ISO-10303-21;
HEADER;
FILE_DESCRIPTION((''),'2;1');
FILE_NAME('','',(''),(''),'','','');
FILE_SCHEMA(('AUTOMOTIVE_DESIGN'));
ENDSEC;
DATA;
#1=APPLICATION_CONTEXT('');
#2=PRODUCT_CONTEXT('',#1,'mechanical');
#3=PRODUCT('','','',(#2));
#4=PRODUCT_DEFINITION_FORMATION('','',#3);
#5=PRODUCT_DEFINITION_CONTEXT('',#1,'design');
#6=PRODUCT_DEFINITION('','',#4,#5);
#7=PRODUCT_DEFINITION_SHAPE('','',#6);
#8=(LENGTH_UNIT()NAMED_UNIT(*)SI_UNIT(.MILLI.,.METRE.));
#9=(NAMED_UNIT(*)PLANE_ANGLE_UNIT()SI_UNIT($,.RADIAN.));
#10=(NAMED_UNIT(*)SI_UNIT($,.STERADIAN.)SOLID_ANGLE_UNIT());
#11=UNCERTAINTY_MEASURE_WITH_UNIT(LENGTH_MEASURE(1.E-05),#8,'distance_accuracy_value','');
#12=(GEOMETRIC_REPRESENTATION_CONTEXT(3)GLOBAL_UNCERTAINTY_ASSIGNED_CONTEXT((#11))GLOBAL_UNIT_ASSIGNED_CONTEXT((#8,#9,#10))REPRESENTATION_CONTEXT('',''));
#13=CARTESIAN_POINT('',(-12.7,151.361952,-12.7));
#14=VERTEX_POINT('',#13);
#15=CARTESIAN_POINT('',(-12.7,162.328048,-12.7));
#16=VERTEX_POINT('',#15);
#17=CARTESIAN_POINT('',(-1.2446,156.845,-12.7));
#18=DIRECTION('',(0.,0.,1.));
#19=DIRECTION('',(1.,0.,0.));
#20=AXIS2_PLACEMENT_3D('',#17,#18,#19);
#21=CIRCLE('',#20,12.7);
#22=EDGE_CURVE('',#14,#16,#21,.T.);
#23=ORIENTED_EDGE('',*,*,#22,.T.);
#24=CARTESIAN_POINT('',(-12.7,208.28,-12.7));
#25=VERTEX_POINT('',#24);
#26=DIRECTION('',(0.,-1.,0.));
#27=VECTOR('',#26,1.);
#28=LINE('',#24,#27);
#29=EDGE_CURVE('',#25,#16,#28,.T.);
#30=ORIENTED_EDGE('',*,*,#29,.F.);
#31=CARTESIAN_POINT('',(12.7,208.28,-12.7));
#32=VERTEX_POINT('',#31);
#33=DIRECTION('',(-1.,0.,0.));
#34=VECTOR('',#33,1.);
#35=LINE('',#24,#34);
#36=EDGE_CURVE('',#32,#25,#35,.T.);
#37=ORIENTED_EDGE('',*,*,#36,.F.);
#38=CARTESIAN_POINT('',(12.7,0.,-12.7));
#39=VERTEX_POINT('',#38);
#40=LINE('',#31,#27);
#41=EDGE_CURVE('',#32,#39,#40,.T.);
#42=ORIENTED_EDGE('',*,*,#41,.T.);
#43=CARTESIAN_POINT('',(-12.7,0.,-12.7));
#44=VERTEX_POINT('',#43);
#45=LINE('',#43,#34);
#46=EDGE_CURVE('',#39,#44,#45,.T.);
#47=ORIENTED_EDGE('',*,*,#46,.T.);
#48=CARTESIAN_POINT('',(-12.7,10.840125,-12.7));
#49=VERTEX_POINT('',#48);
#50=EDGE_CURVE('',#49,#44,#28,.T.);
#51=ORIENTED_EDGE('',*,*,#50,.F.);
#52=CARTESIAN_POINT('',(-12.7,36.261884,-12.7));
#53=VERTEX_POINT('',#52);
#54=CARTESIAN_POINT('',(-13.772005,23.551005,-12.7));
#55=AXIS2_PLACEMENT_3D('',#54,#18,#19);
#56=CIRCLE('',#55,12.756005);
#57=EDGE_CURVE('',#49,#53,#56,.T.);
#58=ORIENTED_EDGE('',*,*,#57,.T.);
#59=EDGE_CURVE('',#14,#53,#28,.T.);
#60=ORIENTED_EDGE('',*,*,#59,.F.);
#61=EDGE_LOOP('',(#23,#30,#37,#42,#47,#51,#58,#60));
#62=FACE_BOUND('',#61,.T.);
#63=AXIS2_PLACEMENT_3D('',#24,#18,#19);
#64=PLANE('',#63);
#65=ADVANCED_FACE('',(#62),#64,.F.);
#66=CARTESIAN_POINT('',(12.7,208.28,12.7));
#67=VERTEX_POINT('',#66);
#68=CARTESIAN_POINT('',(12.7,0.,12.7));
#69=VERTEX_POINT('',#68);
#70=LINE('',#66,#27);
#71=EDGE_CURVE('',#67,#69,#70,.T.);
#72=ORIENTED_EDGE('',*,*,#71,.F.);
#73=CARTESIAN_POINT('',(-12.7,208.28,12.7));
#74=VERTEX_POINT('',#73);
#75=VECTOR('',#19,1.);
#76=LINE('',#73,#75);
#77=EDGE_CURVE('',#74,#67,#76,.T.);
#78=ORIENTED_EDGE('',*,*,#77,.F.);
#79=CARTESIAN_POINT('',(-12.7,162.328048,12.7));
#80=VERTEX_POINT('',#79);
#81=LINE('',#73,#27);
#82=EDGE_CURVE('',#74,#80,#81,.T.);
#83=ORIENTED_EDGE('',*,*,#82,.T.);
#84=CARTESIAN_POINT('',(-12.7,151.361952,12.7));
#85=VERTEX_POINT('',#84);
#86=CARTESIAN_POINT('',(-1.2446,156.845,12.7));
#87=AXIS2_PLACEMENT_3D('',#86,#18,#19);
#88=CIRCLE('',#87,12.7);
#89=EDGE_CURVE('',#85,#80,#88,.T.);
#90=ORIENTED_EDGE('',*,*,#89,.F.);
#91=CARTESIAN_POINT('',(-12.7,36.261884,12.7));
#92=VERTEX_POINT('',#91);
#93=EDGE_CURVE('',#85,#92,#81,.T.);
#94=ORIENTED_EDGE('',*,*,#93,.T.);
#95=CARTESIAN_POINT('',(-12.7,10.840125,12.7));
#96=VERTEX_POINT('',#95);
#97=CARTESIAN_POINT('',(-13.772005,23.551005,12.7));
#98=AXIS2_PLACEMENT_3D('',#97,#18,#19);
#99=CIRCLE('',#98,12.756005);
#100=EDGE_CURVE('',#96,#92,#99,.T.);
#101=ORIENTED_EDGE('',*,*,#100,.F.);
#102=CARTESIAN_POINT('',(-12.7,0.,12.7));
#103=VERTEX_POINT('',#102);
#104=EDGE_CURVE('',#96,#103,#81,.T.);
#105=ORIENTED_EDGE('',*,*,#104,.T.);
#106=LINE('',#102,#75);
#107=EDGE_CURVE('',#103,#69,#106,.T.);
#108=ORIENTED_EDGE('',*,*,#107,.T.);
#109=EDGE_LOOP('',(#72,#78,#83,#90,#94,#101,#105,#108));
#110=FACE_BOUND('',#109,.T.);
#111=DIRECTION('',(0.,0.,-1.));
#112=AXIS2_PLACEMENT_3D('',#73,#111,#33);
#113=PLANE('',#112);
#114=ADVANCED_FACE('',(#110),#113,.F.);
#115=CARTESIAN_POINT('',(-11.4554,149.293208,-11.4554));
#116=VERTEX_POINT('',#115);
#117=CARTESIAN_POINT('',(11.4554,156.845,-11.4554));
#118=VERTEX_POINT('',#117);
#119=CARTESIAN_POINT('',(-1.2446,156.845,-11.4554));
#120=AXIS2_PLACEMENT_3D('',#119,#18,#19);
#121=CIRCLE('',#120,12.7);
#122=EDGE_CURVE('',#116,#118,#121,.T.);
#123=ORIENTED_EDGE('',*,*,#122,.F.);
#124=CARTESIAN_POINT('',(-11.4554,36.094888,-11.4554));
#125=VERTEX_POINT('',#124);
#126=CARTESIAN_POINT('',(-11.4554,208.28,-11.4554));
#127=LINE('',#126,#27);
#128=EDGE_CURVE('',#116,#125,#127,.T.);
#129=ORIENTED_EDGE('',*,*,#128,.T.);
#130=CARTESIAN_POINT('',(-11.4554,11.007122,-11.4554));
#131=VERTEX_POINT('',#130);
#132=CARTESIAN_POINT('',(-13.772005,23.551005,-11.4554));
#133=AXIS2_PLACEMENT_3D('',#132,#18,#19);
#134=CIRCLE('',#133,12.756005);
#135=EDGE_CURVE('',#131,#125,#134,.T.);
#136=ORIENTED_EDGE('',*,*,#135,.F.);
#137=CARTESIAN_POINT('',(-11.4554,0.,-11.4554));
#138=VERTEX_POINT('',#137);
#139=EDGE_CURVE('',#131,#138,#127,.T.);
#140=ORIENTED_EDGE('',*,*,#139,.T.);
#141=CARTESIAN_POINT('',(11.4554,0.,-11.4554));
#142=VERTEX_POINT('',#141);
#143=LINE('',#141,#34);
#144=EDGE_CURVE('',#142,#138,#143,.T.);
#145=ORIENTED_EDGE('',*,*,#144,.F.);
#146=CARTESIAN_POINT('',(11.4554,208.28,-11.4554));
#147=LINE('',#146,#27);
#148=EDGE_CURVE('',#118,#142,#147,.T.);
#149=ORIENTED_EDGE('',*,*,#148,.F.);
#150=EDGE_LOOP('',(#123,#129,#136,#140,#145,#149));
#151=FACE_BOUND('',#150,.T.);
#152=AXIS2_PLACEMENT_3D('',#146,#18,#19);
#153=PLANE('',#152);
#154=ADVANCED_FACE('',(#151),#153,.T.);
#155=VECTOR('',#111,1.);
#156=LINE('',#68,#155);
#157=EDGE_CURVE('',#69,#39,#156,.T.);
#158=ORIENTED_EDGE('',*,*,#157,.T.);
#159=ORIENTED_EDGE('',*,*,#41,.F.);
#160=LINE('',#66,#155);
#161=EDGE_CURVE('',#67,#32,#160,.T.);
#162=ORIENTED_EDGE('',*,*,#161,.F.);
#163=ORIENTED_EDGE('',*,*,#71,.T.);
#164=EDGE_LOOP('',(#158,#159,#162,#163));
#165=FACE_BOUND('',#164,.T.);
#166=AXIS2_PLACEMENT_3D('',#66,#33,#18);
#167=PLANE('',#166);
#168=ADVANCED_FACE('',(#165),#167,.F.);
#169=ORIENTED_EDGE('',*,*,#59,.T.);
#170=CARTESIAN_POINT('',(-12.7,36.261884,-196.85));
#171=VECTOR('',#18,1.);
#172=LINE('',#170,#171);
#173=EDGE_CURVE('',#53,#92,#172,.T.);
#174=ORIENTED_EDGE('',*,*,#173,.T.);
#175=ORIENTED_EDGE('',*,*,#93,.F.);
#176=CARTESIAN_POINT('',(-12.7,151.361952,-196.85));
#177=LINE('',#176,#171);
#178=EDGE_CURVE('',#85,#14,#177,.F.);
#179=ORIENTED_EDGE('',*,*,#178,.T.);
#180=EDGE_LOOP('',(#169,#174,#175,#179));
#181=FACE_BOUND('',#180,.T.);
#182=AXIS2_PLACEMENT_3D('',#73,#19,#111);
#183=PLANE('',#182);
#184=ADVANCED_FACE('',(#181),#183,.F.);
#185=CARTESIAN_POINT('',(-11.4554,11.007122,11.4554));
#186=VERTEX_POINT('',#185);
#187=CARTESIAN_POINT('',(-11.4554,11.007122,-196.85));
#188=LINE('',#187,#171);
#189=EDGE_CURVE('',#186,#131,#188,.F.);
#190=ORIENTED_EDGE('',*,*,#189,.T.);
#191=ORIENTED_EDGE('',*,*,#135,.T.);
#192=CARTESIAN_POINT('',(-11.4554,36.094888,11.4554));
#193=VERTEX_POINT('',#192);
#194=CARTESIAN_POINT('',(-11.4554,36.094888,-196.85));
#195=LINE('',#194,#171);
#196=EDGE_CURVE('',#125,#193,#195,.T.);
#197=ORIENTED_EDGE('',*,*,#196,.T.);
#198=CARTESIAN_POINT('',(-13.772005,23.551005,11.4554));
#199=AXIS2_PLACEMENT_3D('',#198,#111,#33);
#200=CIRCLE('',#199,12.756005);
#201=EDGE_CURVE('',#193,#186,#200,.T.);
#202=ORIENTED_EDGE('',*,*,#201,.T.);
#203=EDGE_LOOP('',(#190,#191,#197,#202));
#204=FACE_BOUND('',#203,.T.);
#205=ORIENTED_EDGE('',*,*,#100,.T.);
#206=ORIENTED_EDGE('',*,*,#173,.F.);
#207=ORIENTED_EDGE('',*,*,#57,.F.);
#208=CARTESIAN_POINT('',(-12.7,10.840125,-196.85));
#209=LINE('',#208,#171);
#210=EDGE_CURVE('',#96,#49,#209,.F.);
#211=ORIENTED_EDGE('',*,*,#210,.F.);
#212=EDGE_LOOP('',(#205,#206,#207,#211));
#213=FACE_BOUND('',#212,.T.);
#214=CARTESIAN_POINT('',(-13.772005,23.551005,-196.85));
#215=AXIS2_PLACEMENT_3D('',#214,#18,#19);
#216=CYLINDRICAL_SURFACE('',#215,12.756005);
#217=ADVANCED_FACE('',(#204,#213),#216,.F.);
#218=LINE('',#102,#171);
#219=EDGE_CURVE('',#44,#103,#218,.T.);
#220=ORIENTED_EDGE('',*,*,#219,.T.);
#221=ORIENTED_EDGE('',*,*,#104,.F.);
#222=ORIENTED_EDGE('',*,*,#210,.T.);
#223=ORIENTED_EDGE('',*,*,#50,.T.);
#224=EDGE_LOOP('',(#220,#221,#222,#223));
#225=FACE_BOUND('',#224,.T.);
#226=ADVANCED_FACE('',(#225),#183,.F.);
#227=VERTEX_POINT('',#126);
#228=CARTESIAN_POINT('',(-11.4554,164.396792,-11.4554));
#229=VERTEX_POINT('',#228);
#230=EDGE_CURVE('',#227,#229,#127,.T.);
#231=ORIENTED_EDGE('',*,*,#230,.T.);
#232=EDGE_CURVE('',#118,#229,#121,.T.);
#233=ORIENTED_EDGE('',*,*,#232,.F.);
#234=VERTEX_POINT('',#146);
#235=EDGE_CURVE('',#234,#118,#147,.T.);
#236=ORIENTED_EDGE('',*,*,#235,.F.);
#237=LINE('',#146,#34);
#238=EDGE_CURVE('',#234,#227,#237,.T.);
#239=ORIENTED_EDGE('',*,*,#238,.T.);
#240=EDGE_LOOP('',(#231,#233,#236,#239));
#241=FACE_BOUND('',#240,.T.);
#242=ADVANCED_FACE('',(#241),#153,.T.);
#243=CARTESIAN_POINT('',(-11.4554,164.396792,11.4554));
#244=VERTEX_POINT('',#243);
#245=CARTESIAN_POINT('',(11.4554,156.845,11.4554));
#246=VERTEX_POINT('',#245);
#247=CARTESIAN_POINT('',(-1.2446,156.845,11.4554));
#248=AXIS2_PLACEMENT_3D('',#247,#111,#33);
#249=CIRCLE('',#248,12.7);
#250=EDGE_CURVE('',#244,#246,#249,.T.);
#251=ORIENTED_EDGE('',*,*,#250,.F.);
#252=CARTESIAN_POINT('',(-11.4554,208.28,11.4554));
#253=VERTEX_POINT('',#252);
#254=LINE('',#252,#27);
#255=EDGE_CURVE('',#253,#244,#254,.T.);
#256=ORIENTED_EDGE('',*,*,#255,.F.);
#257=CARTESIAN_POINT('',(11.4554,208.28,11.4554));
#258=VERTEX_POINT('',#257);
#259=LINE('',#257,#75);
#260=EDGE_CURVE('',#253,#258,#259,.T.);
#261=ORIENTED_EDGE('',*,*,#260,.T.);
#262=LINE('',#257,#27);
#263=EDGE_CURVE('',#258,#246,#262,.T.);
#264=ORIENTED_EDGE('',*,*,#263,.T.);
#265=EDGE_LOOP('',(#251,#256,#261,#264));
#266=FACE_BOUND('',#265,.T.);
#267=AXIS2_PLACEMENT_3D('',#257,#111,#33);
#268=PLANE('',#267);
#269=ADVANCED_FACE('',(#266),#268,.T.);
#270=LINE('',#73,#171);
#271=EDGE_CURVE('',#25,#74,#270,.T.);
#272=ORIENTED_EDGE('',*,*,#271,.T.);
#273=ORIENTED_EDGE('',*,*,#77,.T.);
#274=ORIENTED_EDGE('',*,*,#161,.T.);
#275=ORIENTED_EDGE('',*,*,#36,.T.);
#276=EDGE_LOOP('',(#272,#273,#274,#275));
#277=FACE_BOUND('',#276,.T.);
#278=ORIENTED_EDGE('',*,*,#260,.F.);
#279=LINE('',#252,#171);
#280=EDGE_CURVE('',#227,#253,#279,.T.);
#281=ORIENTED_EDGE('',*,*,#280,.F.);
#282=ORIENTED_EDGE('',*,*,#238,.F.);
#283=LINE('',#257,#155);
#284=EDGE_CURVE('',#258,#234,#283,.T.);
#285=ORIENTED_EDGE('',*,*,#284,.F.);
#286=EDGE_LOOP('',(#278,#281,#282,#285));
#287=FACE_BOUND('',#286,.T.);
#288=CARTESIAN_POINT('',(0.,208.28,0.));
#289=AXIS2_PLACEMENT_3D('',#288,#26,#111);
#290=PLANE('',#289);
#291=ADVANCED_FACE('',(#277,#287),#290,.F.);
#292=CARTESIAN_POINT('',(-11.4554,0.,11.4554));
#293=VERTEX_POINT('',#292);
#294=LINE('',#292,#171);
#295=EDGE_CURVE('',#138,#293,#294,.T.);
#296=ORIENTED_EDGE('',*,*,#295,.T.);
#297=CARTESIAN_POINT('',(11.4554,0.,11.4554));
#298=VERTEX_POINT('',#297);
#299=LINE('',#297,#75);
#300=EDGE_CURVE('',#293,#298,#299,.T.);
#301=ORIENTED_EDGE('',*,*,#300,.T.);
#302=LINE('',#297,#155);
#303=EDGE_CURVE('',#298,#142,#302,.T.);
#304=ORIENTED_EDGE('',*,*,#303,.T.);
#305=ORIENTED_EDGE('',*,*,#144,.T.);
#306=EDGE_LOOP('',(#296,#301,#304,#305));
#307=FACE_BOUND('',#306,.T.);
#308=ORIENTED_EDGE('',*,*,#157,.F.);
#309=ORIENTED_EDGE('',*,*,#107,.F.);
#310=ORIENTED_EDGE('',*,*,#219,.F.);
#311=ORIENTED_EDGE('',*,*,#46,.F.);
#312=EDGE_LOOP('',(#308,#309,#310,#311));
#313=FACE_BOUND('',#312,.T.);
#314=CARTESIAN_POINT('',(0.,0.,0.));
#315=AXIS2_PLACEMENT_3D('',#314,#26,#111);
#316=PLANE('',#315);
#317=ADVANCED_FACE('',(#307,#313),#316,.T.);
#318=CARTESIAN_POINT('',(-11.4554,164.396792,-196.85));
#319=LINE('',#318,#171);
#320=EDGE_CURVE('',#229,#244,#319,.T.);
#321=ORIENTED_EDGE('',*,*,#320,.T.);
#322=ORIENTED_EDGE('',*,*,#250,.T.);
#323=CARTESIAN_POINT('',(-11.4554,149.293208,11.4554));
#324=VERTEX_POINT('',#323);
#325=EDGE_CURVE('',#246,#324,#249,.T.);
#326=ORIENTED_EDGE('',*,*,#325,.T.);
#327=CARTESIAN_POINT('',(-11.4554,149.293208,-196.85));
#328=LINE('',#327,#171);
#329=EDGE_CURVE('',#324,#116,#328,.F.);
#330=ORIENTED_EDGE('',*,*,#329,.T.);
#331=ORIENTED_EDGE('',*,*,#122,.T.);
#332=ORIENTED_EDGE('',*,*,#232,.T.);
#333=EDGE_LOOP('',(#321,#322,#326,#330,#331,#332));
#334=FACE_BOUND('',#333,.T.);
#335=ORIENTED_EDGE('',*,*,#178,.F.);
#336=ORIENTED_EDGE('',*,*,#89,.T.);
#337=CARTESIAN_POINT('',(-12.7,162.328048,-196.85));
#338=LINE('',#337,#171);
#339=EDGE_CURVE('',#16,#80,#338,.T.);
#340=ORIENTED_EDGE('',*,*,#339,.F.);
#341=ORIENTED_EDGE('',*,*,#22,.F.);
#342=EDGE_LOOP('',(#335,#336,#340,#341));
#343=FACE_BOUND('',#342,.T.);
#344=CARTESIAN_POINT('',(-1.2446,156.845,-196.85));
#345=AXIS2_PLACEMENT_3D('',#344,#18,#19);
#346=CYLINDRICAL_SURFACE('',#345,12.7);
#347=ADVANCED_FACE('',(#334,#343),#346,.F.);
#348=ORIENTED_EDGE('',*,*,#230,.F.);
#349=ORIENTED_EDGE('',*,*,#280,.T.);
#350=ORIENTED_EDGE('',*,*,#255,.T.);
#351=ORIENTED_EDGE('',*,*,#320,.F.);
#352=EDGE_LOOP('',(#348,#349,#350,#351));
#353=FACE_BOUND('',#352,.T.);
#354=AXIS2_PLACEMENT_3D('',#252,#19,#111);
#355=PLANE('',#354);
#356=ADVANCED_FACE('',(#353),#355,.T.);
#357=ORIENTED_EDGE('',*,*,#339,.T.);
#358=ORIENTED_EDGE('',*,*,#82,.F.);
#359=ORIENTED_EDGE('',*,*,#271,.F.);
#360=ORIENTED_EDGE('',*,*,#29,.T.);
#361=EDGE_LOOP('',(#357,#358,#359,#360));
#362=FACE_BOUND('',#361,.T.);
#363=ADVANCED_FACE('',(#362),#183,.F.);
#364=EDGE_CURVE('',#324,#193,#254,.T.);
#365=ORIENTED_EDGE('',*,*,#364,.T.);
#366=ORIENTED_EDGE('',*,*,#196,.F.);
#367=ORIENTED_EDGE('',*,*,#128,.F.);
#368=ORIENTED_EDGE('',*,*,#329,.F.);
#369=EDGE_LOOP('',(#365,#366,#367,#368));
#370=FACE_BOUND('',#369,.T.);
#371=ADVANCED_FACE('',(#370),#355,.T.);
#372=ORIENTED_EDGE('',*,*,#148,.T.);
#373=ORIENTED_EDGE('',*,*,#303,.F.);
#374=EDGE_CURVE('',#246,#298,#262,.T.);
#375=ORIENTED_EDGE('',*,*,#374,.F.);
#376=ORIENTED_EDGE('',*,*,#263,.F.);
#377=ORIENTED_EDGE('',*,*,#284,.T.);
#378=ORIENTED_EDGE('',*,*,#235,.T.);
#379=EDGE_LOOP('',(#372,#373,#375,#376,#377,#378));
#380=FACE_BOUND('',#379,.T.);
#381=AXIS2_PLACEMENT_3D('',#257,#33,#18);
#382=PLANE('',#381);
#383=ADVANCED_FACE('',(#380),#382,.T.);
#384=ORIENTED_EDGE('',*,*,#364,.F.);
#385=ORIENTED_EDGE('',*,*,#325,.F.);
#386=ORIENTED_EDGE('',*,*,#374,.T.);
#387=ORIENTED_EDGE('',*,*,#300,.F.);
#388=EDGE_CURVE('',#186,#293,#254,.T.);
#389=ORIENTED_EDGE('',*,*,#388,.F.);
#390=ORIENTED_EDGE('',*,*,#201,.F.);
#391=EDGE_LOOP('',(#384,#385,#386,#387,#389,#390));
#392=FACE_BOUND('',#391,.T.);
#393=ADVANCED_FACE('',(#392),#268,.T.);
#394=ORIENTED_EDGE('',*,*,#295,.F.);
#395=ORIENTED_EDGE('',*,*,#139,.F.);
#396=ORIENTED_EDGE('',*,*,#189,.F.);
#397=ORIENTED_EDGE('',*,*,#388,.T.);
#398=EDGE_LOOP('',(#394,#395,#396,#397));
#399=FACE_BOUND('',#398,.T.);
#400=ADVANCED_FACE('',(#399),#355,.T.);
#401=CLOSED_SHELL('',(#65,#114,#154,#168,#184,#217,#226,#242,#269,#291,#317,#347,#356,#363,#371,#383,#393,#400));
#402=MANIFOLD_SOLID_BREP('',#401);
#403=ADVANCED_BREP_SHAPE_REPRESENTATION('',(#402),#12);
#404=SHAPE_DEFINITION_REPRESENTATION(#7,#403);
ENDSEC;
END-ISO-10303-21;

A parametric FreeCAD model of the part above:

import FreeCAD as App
import Part
import Sketcher

V = App.Vector
Q = App.Units.Quantity


def add_polygon(sketch, points):
    """Adds a closed chain of lines whose ends are joined by coincident constraints."""
    first, n = sketch.GeometryCount, len(points)
    for a, b in zip(points, points[1:] + points[:1]):
        sketch.addGeometry(Part.LineSegment(App.Vector(*a, 0), App.Vector(*b, 0)), False)
    for i in range(n):
        sketch.addConstraint(Sketcher.Constraint("Coincident", first + i, 2, first + (i + 1) % n, 1))

doc = App.newDocument("Part")
params = doc.addObject("Spreadsheet::Sheet", "Params")
for row, (alias, value) in enumerate([
    ("sketch1_width", "1 in"),
    ("sketch1_width2", "0.902 in"),
    ("pad1_length", "8.2 in"),
    ("sketch2_diameter", "1 in"),
    ("pocket1_length", "8.25 in"),
], start=1):
    params.set(f"A{row}", alias)
    params.set(f"B{row}", "=" + value)
    params.setAlias(f"B{row}", alias)

body = doc.addObject("PartDesign::Body", "Body")

sketch1 = body.newObject("Sketcher::SketchObject", "Sketch")
sketch1.AttachmentSupport = (doc.getObject("XZ_Plane"), [""])
sketch1.MapMode = "FlatFace"
add_polygon(sketch1, [(-12.7, -12.7), (-12.7, 12.7), (12.7, 12.7), (12.7, -12.7)])
add_polygon(sketch1, [(11.4554, 11.4554), (-11.4554, 11.4554), (-11.4554, -11.4554), (11.4554, -11.4554)])
sketch1.addConstraint([
    Sketcher.Constraint("Vertical", 0),
    Sketcher.Constraint("Horizontal", 1),
    Sketcher.Constraint("Vertical", 2),
    Sketcher.Constraint("Horizontal", 3),
    Sketcher.Constraint("Horizontal", 4),
    Sketcher.Constraint("Vertical", 5),
    Sketcher.Constraint("Horizontal", 6),
    Sketcher.Constraint("Vertical", 7),
    Sketcher.Constraint("Symmetric", 0, 2, 2, 2, -1, 1),
    Sketcher.Constraint("Symmetric", 4, 2, 6, 2, -1, 1),
    Sketcher.Constraint("Equal", 3, 0),
    Sketcher.Constraint("Equal", 6, 5),
    Sketcher.Constraint("DistanceX", 1, 1, 1, 2, Q("1 in")),
    Sketcher.Constraint("DistanceX", 4, 2, 4, 1, Q("0.902 in")),
])
sketch1.setExpression("Constraints[20]", "Params.sketch1_width")
sketch1.setExpression("Constraints[21]", "Params.sketch1_width2")
pad1 = body.newObject("PartDesign::Pad", "Pad")
pad1.Profile = sketch1
pad1.setExpression("Length", "Params.pad1_length")
pad1.Reversed = True

sketch2 = body.newObject("Sketcher::SketchObject", "Sketch001")
sketch2.AttachmentSupport = (doc.getObject("XY_Plane"), [""])
sketch2.MapMode = "FlatFace"
sketch2.AttachmentOffset = App.Placement(V(0, 0, 0.5 * 25.4), App.Rotation())
sketch2.addGeometry([
    Part.Circle(V(-13.772005, 23.551005, 0), V(0, 0, 1), 12.756005),
    Part.Circle(V(-1.2446, 156.845, 0), V(0, 0, 1), 12.7),
], False)
sketch2.addConstraint([
    Sketcher.Constraint("Diameter", 1, Q("1 in")),
    Sketcher.Constraint("Diameter", 0, Q("25.512009 mm")),
    Sketcher.Constraint("DistanceX", 1, 3, -1, 1, Q("0.049 in")),
    Sketcher.Constraint("DistanceY", -1, 1, 1, 3, Q("6.175 in")),
    Sketcher.Constraint("DistanceX", 0, 3, -1, 1, Q("13.772005 mm")),
    Sketcher.Constraint("DistanceY", -1, 1, 0, 3, Q("23.551005 mm")),
])
sketch2.setExpression("Constraints[0]", "Params.sketch2_diameter")
pocket1 = body.newObject("PartDesign::Pocket", "Pocket")
pocket1.Profile = sketch2
pocket1.setExpression("Length", "Params.pocket1_length")

doc.recompute()
